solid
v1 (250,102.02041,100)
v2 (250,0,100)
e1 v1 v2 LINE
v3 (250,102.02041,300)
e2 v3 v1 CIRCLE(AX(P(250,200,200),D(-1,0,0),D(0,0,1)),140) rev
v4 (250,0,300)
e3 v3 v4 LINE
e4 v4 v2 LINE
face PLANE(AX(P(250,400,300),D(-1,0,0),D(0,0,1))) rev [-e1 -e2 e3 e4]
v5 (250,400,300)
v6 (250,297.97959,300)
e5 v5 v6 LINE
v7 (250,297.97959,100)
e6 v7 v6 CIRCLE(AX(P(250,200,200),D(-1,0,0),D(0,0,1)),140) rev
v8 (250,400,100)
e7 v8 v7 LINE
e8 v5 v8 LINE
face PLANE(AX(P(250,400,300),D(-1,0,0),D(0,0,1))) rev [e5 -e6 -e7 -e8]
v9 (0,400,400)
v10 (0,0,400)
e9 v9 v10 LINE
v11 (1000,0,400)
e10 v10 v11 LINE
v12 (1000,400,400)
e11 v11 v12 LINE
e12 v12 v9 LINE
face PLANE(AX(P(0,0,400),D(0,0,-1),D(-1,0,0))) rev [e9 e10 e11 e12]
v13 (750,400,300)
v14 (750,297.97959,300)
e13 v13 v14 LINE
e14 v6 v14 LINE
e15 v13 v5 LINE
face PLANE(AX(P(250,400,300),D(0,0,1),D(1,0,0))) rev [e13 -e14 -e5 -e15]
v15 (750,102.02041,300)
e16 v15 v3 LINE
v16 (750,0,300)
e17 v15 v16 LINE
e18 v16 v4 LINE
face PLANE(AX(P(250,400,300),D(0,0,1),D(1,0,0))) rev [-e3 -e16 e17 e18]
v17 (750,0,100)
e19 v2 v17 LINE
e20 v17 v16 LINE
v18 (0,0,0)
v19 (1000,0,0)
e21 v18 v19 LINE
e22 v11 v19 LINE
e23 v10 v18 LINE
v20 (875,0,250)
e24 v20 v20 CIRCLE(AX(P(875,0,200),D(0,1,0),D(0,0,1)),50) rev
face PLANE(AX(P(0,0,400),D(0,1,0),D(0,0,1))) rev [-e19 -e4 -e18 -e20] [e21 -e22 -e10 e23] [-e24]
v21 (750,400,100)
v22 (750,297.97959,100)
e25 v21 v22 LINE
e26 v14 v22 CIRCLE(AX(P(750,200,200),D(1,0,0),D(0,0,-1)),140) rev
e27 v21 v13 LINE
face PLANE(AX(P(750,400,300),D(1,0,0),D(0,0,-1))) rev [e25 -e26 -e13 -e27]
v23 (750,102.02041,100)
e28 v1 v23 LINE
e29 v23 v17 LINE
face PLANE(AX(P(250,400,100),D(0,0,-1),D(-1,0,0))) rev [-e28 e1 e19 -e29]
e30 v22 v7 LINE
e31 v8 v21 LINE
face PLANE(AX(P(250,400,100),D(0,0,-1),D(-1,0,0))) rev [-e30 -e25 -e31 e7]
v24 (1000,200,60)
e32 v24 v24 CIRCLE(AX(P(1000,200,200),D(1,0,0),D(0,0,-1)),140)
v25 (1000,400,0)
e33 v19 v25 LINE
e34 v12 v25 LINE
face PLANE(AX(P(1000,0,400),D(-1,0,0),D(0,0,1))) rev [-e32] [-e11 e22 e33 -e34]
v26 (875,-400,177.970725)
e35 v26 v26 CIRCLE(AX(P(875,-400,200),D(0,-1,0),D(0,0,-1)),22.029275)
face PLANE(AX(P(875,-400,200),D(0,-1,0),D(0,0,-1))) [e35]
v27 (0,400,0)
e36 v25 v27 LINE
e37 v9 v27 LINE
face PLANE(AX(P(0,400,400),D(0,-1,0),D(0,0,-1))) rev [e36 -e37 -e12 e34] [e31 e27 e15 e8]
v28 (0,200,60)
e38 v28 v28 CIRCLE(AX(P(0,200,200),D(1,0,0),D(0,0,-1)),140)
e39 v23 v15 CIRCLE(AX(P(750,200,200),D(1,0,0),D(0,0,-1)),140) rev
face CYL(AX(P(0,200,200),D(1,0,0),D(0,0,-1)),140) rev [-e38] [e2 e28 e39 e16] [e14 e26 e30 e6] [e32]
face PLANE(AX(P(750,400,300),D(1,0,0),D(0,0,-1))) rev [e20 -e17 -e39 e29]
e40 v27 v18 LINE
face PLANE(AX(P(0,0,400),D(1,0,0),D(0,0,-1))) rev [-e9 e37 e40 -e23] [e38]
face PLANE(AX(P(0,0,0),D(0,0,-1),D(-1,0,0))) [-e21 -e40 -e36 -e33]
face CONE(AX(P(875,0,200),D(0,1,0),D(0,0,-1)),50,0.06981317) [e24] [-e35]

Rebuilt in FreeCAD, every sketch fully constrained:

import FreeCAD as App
import Part
import Sketcher

V = App.Vector


def add_polygon(sketch, points):
    """Adds a closed chain of lines whose ends are joined by coincident constraints."""
    first, n = sketch.GeometryCount, len(points)
    for a, b in zip(points, points[1:] + points[:1]):
        sketch.addGeometry(Part.LineSegment(App.Vector(*a, 0), App.Vector(*b, 0)), False)
    for i in range(n):
        sketch.addConstraint(Sketcher.Constraint("Coincident", first + i, 2, first + (i + 1) % n, 1))

doc = App.newDocument("Part")
body = doc.addObject("PartDesign::Body", "Body")

# Sketch on XY plane
sketch1 = doc.addObject("Sketcher::SketchObject", "Sketch")
body.addObject(sketch1)
sketch1.AttachmentSupport = (doc.XY_Plane, [""])
sketch1.MapMode = "FlatFace"
add_polygon(sketch1, [(0, 400), (0, 0), (1000, 0), (1000, 400)])  # lines 0-3
sketch1.addConstraint([
    Sketcher.Constraint("Vertical", 0),
    Sketcher.Constraint("Horizontal", 1),
    Sketcher.Constraint("Vertical", 2),
    Sketcher.Constraint("Horizontal", 3),
    Sketcher.Constraint("Coincident", 0, 2, -1, 1),
    Sketcher.Constraint("DistanceX", 1, 1, 1, 2, 1000.0),
    Sketcher.Constraint("DistanceY", 0, 2, 0, 1, 400.0),
])
pad1 = doc.addObject("PartDesign::Pad", "Pad")
body.addObject(pad1)
pad1.Profile = sketch1
pad1.Length = 400

# Sketch on YZ plane
sketch2 = doc.addObject("Sketcher::SketchObject", "Sketch001")
body.addObject(sketch2)
sketch2.AttachmentSupport = (doc.YZ_Plane, [""])
sketch2.MapMode = "FlatFace"
sketch2.AttachmentOffset = App.Placement(V(0, 0, 1000), App.Rotation())
sketch2.addGeometry(Part.Circle(V(200, 200, 0), V(0, 0, 1), 140), False)
sketch2.addConstraint([
    Sketcher.Constraint("Diameter", 0, 280.0),
    Sketcher.Constraint("DistanceX", -1, 1, 0, 3, 200.0),
    Sketcher.Constraint("DistanceY", -1, 1, 0, 3, 200.0),
])
pocket1 = doc.addObject("PartDesign::Pocket", "Pocket")
body.addObject(pocket1)
pocket1.Profile = sketch2
pocket1.Length = 1000

# Sketch on XZ plane
sketch3 = doc.addObject("Sketcher::SketchObject", "Sketch002")
body.addObject(sketch3)
sketch3.AttachmentSupport = (doc.XZ_Plane, [""])
sketch3.MapMode = "FlatFace"
add_polygon(sketch3, [(250, 300), (250, 100), (750, 100), (750, 300)])  # lines 0-3
sketch3.addConstraint([
    Sketcher.Constraint("Vertical", 0),
    Sketcher.Constraint("Horizontal", 1),
    Sketcher.Constraint("Vertical", 2),
    Sketcher.Constraint("Horizontal", 3),
    Sketcher.Constraint("DistanceX", 1, 1, 1, 2, 500.0),
    Sketcher.Constraint("DistanceY", 0, 2, 0, 1, 200.0),
    Sketcher.Constraint("DistanceX", -1, 1, 0, 2, 250.0),
    Sketcher.Constraint("DistanceY", -1, 1, 0, 2, 100.0),
])
pocket2 = doc.addObject("PartDesign::Pocket", "Pocket001")
body.addObject(pocket2)
pocket2.Profile = sketch3
pocket2.Length = 400

# Sketch on XZ plane
sketch4 = doc.addObject("Sketcher::SketchObject", "Sketch003")
body.addObject(sketch4)
sketch4.AttachmentSupport = (doc.XZ_Plane, [""])
sketch4.MapMode = "FlatFace"
sketch4.addGeometry(Part.Circle(V(875, 200, 0), V(0, 0, 1), 50), False)
sketch4.addConstraint([
    Sketcher.Constraint("Diameter", 0, 100.0),
    Sketcher.Constraint("DistanceX", -1, 1, 0, 3, 875.0),
    Sketcher.Constraint("DistanceY", -1, 1, 0, 3, 200.0),
])
pad2 = doc.addObject("PartDesign::Pad", "Pad001")
body.addObject(pad2)
pad2.Profile = sketch4
pad2.Length = 400
pad2.TaperAngle = -4

doc.recompute()
